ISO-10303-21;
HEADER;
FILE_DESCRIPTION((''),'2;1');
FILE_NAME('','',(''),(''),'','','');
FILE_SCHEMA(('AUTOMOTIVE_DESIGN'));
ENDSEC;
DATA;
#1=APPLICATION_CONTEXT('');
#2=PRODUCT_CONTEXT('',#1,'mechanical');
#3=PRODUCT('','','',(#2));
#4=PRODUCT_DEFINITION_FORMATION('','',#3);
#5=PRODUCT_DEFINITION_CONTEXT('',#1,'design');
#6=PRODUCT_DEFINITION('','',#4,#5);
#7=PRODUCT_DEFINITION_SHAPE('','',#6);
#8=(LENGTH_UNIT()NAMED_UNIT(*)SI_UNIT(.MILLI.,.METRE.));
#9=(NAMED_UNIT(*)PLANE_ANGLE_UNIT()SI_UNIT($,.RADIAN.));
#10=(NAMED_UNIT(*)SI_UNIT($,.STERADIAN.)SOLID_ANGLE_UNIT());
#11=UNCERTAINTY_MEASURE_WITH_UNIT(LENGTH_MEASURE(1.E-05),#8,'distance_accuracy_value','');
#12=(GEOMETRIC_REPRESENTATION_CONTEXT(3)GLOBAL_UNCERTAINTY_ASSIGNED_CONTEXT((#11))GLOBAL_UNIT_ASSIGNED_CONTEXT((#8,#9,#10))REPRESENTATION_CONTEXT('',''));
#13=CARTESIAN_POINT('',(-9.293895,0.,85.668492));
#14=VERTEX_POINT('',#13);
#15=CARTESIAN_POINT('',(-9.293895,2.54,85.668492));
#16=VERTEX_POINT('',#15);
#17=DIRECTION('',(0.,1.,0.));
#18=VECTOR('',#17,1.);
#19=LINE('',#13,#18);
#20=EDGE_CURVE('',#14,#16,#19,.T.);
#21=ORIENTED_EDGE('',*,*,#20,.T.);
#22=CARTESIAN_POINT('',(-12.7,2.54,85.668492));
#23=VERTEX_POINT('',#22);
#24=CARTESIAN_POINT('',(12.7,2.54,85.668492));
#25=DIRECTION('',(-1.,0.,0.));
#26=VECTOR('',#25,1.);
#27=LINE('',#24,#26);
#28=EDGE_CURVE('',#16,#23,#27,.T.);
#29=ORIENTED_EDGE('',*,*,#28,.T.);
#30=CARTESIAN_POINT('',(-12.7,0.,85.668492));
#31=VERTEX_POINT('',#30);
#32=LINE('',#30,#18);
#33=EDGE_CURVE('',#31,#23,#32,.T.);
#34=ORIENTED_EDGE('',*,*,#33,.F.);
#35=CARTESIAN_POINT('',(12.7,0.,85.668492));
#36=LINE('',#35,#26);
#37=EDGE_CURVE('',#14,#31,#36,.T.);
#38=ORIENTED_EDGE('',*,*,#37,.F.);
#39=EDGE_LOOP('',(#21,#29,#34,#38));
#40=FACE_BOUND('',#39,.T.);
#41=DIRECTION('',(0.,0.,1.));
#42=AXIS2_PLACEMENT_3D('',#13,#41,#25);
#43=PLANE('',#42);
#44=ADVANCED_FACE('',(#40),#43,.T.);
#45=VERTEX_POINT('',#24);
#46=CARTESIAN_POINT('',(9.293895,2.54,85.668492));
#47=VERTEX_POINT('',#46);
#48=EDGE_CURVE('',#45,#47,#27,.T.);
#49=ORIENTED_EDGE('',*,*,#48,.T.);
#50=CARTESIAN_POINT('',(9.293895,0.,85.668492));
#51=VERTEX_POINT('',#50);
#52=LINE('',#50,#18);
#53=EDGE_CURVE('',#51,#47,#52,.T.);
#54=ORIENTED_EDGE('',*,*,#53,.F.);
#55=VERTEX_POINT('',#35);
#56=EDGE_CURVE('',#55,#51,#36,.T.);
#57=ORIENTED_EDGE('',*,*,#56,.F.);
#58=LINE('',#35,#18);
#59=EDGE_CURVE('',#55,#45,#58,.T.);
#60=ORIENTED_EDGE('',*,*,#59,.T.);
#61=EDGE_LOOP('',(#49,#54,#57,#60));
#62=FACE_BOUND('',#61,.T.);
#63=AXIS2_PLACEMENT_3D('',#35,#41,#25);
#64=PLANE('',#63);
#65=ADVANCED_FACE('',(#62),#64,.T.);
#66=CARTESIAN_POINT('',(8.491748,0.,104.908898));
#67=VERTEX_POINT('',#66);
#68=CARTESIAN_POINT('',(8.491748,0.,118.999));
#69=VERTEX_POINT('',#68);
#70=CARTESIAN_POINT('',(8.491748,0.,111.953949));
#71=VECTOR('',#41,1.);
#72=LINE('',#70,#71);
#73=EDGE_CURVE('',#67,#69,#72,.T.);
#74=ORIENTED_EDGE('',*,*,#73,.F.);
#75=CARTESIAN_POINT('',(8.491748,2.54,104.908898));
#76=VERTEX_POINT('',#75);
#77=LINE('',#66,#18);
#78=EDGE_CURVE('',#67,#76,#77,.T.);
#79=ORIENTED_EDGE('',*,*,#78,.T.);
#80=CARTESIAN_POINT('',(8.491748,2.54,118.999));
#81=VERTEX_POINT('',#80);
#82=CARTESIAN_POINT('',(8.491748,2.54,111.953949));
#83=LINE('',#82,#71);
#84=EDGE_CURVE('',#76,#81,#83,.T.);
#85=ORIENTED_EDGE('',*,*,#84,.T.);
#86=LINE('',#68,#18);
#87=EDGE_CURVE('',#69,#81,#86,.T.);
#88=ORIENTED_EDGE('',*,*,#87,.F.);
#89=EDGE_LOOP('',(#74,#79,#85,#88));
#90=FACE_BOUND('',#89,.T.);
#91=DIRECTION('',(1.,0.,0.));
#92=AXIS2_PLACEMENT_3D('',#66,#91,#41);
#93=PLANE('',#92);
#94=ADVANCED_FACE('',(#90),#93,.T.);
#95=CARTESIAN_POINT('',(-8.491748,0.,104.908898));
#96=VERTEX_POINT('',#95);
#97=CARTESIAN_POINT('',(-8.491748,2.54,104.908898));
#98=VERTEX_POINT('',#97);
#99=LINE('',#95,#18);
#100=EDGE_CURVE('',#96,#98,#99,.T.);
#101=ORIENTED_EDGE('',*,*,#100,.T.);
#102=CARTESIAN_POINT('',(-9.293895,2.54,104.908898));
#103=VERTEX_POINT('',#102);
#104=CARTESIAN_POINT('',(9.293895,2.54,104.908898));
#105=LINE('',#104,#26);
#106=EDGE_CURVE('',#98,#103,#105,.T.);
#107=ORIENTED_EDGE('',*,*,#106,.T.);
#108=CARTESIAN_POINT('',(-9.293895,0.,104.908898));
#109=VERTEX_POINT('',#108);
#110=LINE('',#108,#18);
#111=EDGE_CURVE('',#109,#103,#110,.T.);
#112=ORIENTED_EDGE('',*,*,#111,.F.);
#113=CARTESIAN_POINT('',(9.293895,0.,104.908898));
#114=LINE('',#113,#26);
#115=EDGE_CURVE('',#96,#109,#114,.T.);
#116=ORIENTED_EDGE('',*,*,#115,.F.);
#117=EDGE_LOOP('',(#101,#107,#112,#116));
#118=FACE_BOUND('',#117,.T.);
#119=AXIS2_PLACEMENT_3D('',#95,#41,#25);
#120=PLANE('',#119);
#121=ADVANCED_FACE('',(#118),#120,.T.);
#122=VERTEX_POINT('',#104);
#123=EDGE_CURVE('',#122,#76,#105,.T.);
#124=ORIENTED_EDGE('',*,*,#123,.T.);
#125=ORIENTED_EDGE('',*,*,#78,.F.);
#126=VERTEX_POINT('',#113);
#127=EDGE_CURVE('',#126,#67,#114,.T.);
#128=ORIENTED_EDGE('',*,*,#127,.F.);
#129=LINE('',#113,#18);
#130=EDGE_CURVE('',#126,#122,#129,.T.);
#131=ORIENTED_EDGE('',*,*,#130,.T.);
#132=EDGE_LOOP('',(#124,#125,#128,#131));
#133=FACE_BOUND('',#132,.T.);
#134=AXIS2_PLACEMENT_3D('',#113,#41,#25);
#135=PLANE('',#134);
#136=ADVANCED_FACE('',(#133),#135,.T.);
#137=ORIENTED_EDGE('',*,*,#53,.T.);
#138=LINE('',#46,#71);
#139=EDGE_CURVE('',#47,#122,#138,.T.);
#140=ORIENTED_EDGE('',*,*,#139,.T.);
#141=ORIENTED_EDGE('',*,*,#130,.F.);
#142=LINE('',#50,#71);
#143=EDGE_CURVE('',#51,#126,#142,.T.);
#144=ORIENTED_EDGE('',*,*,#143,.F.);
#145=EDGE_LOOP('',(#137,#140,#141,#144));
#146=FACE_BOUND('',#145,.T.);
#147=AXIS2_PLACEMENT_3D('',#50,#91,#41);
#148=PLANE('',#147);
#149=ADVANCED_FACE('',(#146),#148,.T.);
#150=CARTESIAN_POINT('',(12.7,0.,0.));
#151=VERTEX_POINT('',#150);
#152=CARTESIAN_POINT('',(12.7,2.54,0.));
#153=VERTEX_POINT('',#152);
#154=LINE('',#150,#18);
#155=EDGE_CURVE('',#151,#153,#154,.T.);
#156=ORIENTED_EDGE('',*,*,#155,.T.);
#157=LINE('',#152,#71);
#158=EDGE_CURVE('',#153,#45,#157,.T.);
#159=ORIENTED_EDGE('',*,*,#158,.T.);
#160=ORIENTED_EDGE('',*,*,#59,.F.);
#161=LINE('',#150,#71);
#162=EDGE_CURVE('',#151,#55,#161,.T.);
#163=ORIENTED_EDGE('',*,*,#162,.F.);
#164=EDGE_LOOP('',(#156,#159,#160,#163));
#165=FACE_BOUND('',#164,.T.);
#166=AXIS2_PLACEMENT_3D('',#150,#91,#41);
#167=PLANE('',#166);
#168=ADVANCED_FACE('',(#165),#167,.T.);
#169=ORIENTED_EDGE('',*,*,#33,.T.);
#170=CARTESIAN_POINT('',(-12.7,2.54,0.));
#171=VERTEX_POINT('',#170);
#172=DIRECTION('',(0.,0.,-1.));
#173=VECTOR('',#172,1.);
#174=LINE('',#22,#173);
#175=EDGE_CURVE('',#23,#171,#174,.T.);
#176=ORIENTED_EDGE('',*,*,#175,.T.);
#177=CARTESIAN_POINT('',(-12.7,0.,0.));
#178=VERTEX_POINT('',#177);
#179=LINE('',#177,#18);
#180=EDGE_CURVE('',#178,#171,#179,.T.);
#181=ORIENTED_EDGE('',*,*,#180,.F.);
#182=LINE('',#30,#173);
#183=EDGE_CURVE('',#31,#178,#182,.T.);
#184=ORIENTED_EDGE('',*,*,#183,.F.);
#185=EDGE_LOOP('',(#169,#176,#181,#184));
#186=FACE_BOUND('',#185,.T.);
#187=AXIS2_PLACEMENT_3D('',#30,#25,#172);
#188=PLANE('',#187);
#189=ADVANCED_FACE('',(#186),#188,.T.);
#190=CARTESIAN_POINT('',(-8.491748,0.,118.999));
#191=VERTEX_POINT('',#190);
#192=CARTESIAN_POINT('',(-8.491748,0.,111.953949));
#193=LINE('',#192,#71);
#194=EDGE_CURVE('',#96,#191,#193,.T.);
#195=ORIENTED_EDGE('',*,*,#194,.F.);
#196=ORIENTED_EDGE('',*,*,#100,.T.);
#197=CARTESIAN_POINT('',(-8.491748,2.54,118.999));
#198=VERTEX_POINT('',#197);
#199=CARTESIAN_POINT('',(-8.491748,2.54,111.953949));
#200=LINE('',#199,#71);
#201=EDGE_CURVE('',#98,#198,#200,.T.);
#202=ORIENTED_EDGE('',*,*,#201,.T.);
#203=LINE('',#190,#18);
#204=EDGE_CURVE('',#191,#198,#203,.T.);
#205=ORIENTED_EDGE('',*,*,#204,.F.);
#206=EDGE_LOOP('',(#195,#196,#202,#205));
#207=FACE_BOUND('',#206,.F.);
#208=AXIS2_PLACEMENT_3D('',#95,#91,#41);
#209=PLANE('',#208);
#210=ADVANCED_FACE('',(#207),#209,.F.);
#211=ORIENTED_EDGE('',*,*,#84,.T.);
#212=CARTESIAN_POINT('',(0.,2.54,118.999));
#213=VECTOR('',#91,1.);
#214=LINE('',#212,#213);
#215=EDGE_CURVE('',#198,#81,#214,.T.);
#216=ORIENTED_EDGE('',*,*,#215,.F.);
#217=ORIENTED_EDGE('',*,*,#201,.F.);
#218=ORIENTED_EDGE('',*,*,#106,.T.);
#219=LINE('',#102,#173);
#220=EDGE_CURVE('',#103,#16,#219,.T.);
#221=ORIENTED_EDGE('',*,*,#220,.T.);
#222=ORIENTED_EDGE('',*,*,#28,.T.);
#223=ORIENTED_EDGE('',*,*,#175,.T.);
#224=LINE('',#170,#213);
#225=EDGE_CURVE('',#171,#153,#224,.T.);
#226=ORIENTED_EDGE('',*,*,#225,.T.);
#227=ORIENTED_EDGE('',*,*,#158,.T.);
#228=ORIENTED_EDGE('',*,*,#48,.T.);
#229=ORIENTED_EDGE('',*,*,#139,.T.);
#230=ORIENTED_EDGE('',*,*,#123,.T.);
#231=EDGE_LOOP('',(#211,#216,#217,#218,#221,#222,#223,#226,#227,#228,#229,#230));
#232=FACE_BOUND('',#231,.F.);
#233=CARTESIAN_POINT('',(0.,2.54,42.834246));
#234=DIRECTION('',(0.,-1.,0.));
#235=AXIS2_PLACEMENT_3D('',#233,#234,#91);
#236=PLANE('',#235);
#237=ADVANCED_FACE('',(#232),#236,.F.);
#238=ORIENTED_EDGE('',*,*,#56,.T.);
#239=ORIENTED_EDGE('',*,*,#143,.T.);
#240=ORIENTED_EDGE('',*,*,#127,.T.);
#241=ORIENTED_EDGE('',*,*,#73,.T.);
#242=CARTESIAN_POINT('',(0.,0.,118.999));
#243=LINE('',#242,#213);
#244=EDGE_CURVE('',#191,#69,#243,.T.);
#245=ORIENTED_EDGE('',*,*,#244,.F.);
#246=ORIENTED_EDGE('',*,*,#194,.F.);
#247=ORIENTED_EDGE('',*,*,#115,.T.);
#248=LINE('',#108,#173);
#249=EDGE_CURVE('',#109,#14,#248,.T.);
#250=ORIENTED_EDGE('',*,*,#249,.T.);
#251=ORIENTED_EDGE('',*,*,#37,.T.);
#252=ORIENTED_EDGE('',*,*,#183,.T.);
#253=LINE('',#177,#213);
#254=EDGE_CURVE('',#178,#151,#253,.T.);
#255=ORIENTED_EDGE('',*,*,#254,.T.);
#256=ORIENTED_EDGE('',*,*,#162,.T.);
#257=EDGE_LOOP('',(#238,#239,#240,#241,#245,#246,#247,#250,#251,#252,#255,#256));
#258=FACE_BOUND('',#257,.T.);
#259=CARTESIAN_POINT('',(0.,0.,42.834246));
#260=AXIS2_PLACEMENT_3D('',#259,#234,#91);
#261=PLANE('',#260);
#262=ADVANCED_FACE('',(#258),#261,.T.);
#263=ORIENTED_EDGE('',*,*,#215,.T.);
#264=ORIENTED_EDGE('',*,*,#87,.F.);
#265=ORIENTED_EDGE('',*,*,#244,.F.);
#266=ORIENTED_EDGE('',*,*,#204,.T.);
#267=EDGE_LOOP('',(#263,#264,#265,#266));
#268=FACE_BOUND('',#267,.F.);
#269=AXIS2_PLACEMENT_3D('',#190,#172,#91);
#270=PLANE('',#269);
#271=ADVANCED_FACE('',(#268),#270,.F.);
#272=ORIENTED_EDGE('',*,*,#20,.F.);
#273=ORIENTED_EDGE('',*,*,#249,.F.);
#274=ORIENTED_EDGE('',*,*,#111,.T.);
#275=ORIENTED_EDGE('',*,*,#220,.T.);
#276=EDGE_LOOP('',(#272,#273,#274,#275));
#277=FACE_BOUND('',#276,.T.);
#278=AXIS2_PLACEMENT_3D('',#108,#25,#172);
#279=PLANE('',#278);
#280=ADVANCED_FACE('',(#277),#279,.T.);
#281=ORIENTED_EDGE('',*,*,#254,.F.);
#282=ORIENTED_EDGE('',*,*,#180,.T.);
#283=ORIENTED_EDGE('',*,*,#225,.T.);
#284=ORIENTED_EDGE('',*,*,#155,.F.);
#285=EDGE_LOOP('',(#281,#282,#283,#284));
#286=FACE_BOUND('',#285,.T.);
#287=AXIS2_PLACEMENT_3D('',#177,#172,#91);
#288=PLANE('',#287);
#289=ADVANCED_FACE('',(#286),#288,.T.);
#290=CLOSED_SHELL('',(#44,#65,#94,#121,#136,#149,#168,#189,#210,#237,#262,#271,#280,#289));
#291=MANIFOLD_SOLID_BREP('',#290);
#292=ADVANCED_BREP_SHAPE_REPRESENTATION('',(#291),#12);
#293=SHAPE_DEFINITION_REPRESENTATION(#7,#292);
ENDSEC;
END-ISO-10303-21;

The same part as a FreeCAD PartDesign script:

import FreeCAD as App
import Part
import Sketcher
from FreeCAD import Vector
Q = App.Units.Quantity


def add_polygon(sketch, points):
    """Adds a closed chain of lines whose ends are joined by coincident constraints."""
    first, n = sketch.GeometryCount, len(points)
    for a, b in zip(points, points[1:] + points[:1]):
        sketch.addGeometry(Part.LineSegment(App.Vector(*a, 0), App.Vector(*b, 0)), False)
    for i in range(n):
        sketch.addConstraint(Sketcher.Constraint("Coincident", first + i, 2, first + (i + 1) % n, 1))

doc = App.newDocument("Part")
body = doc.addObject("PartDesign::Body", "Body")

# Sketch on XZ plane
sketch1 = body.newObject("Sketcher::SketchObject", "Sketch")
sketch1.AttachmentSupport = (doc.getObject("XZ_Plane"), [""])
sketch1.MapMode = "FlatFace"
add_polygon(sketch1, [(-12.7, 0), (12.7, 0), (12.7, 85.7), (9.3, 85.7), (9.3, 104.9), (8.5, 104.9), (8.5, 119), (-8.5, 119), (-8.5, 104.9), (-9.3, 104.9), (-9.3, 85.7), (-12.7, 85.7)])  # lines 0-11
sketch1.addConstraint(Sketcher.Constraint("Horizontal", 0))
sketch1.addConstraint(Sketcher.Constraint("Vertical", 1))
sketch1.addConstraint(Sketcher.Constraint("Horizontal", 2))
sketch1.addConstraint(Sketcher.Constraint("Vertical", 3))
sketch1.addConstraint(Sketcher.Constraint("Horizontal", 4))
sketch1.addConstraint(Sketcher.Constraint("Vertical", 5))
sketch1.addConstraint(Sketcher.Constraint("Horizontal", 6))
sketch1.addConstraint(Sketcher.Constraint("Vertical", 7))
sketch1.addConstraint(Sketcher.Constraint("Horizontal", 8))
sketch1.addConstraint(Sketcher.Constraint("Vertical", 9))
sketch1.addConstraint(Sketcher.Constraint("Horizontal", 10))
sketch1.addConstraint(Sketcher.Constraint("Vertical", 11))
sketch1.addConstraint(Sketcher.Constraint("Symmetric", 0, 2, 11, 2, -1, 1))
sketch1.addConstraint(Sketcher.Constraint("Symmetric", 4, 2, 7, 2, -2))
sketch1.addConstraint(Sketcher.Constraint("Symmetric", 2, 2, 9, 2, -2))
sketch1.addConstraint(Sketcher.Constraint("DistanceX", 0, 1, 0, 2, Q("1 in")))
sketch1.addConstraint(Sketcher.Constraint("DistanceY", -1, 1, 5, 2, Q("4.685 in")))
sketch1.addConstraint(Sketcher.Constraint("DistanceY", 1, 1, 1, 2, Q("85.668492 mm")))
sketch1.addConstraint(Sketcher.Constraint("DistanceX", 2, 2, 2, 1, Q("3.406105 mm")))
sketch1.addConstraint(Sketcher.Constraint("DistanceX", 4, 2, 4, 1, Q("0.802147 mm")))
sketch1.addConstraint(Sketcher.Constraint("DistanceY", 3, 1, 3, 2, Q("19.240406 mm")))
pad1 = body.newObject("PartDesign::Pad", "Pad")
pad1.Profile = sketch1
pad1.Length = Q("0.1 in")
pad1.Reversed = True

doc.recompute()
